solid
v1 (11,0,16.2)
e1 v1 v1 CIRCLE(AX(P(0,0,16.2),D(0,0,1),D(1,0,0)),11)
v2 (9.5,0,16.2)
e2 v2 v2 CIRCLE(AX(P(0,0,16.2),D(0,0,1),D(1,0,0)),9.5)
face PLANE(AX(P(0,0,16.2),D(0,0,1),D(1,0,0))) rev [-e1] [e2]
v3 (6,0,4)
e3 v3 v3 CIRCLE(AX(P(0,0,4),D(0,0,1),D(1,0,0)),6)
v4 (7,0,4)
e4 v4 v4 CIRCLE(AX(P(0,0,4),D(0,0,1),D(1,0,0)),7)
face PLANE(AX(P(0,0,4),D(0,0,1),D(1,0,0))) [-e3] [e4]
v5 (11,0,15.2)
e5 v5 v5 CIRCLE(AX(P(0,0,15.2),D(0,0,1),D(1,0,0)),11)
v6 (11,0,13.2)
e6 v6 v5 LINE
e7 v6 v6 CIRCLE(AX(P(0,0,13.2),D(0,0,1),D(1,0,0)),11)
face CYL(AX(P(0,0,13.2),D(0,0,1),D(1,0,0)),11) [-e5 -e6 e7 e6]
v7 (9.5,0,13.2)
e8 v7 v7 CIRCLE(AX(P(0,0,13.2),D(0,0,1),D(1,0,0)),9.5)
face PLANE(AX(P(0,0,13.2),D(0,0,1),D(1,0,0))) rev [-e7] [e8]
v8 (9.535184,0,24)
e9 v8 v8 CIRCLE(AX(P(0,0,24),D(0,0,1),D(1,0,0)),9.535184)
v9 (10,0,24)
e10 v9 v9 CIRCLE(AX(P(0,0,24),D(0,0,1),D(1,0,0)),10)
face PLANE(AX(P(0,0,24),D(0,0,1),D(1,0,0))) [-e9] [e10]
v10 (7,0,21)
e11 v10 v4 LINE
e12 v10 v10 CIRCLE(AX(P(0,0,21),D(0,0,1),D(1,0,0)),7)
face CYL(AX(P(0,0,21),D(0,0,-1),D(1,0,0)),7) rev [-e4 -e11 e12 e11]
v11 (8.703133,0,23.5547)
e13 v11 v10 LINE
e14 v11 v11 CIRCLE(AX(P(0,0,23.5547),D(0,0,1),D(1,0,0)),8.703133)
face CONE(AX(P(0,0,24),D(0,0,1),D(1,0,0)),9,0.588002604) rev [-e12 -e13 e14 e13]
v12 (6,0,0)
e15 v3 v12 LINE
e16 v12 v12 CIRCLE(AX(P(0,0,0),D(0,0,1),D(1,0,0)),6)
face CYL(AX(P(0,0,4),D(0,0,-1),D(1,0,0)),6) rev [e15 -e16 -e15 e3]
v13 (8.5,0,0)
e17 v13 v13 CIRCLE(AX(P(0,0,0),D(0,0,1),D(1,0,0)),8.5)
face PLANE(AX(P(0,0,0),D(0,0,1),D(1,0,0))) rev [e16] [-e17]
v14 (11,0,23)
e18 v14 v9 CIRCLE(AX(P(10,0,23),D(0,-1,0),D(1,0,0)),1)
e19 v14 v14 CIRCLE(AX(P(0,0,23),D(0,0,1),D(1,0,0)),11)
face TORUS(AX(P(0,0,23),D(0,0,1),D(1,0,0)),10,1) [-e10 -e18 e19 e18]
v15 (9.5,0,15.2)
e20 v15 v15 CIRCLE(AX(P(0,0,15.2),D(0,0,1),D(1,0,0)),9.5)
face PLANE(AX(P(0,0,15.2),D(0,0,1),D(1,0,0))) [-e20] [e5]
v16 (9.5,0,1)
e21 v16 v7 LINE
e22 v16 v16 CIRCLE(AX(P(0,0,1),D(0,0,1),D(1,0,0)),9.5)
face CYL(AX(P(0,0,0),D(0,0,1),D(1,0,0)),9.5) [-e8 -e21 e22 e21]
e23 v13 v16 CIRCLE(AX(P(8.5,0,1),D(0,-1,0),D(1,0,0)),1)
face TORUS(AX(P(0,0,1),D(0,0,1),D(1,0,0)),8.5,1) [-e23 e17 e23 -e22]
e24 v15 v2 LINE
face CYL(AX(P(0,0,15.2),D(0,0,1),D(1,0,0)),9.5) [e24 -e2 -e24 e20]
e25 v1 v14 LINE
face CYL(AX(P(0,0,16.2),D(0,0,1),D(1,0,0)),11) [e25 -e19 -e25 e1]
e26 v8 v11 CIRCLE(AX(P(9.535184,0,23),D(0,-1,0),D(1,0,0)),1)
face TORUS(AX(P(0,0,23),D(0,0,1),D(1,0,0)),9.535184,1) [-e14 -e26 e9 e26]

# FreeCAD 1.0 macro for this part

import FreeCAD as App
import Part
import Sketcher

V = App.Vector
Q = App.Units.Quantity


def edges_at(feature, points):
    """Names of the edges that pass closest to the given points."""
    edges = feature.Shape.Edges
    near = lambda p: min(range(len(edges)), key=lambda i: edges[i].distToShape(Part.Vertex(*p))[0])
    return sorted({f"Edge{near(p) + 1}" for p in points})

doc = App.newDocument("Part")
body = doc.addObject("PartDesign::Body", "Body")

sketch1 = body.newObject("Sketcher::SketchObject", "Sketch")
sketch1.AttachmentSupport = (doc.getObject("XZ_Plane"), [""])
sketch1.MapMode = "FlatFace"
sketch1.addGeometry(Part.LineSegment(V(7, 21, 0), V(7, 4, 0)), False)
sketch1.addGeometry(Part.LineSegment(V(7, 4, 0), V(6, 4, 0)), False)
sketch1.addGeometry(Part.LineSegment(V(6, 4, 0), V(6, 0, 0)), False)
sketch1.addGeometry(Part.LineSegment(V(6, 0, 0), V(9.5, 0, 0)), False)
sketch1.addGeometry(Part.LineSegment(V(9.5, 0, 0), V(9.5, 13.2, 0)), False)
sketch1.addGeometry(Part.LineSegment(V(9.5, 13.2, 0), V(11, 13.2, 0)), False)
sketch1.addGeometry(Part.LineSegment(V(11, 13.2, 0), V(11, 15.2, 0)), False)
sketch1.addGeometry(Part.LineSegment(V(11, 15.2, 0), V(9.5, 15.2, 0)), False)
sketch1.addGeometry(Part.LineSegment(V(9.5, 15.2, 0), V(9.5, 16.2, 0)), False)
sketch1.addGeometry(Part.LineSegment(V(9.5, 16.2, 0), V(11, 16.2, 0)), False)
sketch1.addGeometry(Part.LineSegment(V(11, 16.2, 0), V(11, 24, 0)), False)
sketch1.addGeometry(Part.LineSegment(V(11, 24, 0), V(9, 24, 0)), False)
sketch1.addGeometry(Part.LineSegment(V(9, 24, 0), V(7, 21, 0)), False)
sketch1.addConstraint(Sketcher.Constraint("Coincident", 0, 2, 1, 1))
sketch1.addConstraint(Sketcher.Constraint("Coincident", 1, 2, 2, 1))
sketch1.addConstraint(Sketcher.Constraint("Coincident", 2, 2, 3, 1))
sketch1.addConstraint(Sketcher.Constraint("Coincident", 3, 2, 4, 1))
sketch1.addConstraint(Sketcher.Constraint("Coincident", 4, 2, 5, 1))
sketch1.addConstraint(Sketcher.Constraint("Coincident", 5, 2, 6, 1))
sketch1.addConstraint(Sketcher.Constraint("Coincident", 6, 2, 7, 1))
sketch1.addConstraint(Sketcher.Constraint("Coincident", 7, 2, 8, 1))
sketch1.addConstraint(Sketcher.Constraint("Coincident", 8, 2, 9, 1))
sketch1.addConstraint(Sketcher.Constraint("Coincident", 9, 2, 10, 1))
sketch1.addConstraint(Sketcher.Constraint("Coincident", 10, 2, 11, 1))
sketch1.addConstraint(Sketcher.Constraint("Coincident", 11, 2, 12, 1))
sketch1.addConstraint(Sketcher.Constraint("Coincident", 12, 2, 0, 1))
sketch1.addConstraint(Sketcher.Constraint("Vertical", 0))
sketch1.addConstraint(Sketcher.Constraint("Horizontal", 1))
sketch1.addConstraint(Sketcher.Constraint("Vertical", 2))
sketch1.addConstraint(Sketcher.Constraint("Horizontal", 3))
sketch1.addConstraint(Sketcher.Constraint("Vertical", 4))
sketch1.addConstraint(Sketcher.Constraint("Horizontal", 5))
sketch1.addConstraint(Sketcher.Constraint("Vertical", 6))
sketch1.addConstraint(Sketcher.Constraint("Horizontal", 7))
sketch1.addConstraint(Sketcher.Constraint("Vertical", 8))
sketch1.addConstraint(Sketcher.Constraint("Horizontal", 9))
sketch1.addConstraint(Sketcher.Constraint("Vertical", 10))
sketch1.addConstraint(Sketcher.Constraint("Horizontal", 11))
sketch1.addConstraint(Sketcher.Constraint("PointOnObject", 2, 2, -1))
sketch1.addConstraint(Sketcher.Constraint("Vertical", 4, 2, 7, 2))
sketch1.addConstraint(Sketcher.Constraint("Vertical", 6, 2, 9, 2))
sketch1.addConstraint(Sketcher.Constraint("Equal", 11, 6))
sketch1.addConstraint(Sketcher.Constraint("Equal", 1, 8))
sketch1.addConstraint(Sketcher.Constraint("DistanceX", 1, 2, 1, 1, Q("1 mm")))
sketch1.addConstraint(Sketcher.Constraint("DistanceX", 11, 2, 11, 1, Q("2 mm")))
sketch1.addConstraint(Sketcher.Constraint("DistanceY", 0, 2, 0, 1, Q("17 mm")))
sketch1.addConstraint(Sketcher.Constraint("DistanceY", 2, 2, 2, 1, Q("4 mm")))
sketch1.addConstraint(Sketcher.Constraint("DistanceX", 3, 1, 3, 2, Q("3.5 mm")))
sketch1.addConstraint(Sketcher.Constraint("DistanceX", 5, 1, 5, 2, Q("1.5 mm")))
sketch1.addConstraint(Sketcher.Constraint("DistanceY", 4, 1, 4, 2, Q("13.2 mm")))
sketch1.addConstraint(Sketcher.Constraint("DistanceY", 10, 1, 10, 2, Q("7.8 mm")))
sketch1.addConstraint(Sketcher.Constraint("DistanceX", -1, 1, 0, 2, Q("7 mm")))
revolution = body.newObject("PartDesign::Revolution", "Revolution")
revolution.Profile = sketch1
revolution.ReferenceAxis = (sketch1, ["V_Axis"])
revolution.Angle = 360
doc.recompute()

fillet = body.newObject("PartDesign::Fillet", "Fillet")
fillet.Base = (revolution, edges_at(revolution, [(-11, 0, 24), (-9, 0, 24), (-9.5, 0, 0)]))
fillet.Radius = 1

doc.recompute()
